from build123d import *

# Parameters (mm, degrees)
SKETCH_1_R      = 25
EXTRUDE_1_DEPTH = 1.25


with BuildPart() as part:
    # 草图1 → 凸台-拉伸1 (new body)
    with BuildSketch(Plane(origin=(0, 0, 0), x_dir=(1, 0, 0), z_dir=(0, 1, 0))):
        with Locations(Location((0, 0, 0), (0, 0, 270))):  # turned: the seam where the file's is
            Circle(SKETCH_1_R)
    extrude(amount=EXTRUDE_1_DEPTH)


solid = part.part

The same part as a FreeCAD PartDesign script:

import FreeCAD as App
import Part
import Sketcher

doc = App.newDocument("Part")
body = doc.addObject("PartDesign::Body", "Body")

# Sketch on XZ plane
sketch1 = doc.addObject("Sketcher::SketchObject", "Sketch")
body.addObject(sketch1)
sketch1.AttachmentSupport = (doc.XZ_Plane, [""])
sketch1.MapMode = "FlatFace"
sketch1.addGeometry(Part.Circle(App.Vector(0, 0, 0), App.Vector(0, 0, 1), 25), False)
sketch1.addConstraint([
    Sketcher.Constraint("Coincident", 0, 3, -1, 1),
    Sketcher.Constraint("Diameter", 0, 50.0),
])
pad1 = doc.addObject("PartDesign::Pad", "Pad")
body.addObject(pad1)
pad1.Profile = sketch1
pad1.Length = 1.25
pad1.Reversed = True

doc.recompute()
